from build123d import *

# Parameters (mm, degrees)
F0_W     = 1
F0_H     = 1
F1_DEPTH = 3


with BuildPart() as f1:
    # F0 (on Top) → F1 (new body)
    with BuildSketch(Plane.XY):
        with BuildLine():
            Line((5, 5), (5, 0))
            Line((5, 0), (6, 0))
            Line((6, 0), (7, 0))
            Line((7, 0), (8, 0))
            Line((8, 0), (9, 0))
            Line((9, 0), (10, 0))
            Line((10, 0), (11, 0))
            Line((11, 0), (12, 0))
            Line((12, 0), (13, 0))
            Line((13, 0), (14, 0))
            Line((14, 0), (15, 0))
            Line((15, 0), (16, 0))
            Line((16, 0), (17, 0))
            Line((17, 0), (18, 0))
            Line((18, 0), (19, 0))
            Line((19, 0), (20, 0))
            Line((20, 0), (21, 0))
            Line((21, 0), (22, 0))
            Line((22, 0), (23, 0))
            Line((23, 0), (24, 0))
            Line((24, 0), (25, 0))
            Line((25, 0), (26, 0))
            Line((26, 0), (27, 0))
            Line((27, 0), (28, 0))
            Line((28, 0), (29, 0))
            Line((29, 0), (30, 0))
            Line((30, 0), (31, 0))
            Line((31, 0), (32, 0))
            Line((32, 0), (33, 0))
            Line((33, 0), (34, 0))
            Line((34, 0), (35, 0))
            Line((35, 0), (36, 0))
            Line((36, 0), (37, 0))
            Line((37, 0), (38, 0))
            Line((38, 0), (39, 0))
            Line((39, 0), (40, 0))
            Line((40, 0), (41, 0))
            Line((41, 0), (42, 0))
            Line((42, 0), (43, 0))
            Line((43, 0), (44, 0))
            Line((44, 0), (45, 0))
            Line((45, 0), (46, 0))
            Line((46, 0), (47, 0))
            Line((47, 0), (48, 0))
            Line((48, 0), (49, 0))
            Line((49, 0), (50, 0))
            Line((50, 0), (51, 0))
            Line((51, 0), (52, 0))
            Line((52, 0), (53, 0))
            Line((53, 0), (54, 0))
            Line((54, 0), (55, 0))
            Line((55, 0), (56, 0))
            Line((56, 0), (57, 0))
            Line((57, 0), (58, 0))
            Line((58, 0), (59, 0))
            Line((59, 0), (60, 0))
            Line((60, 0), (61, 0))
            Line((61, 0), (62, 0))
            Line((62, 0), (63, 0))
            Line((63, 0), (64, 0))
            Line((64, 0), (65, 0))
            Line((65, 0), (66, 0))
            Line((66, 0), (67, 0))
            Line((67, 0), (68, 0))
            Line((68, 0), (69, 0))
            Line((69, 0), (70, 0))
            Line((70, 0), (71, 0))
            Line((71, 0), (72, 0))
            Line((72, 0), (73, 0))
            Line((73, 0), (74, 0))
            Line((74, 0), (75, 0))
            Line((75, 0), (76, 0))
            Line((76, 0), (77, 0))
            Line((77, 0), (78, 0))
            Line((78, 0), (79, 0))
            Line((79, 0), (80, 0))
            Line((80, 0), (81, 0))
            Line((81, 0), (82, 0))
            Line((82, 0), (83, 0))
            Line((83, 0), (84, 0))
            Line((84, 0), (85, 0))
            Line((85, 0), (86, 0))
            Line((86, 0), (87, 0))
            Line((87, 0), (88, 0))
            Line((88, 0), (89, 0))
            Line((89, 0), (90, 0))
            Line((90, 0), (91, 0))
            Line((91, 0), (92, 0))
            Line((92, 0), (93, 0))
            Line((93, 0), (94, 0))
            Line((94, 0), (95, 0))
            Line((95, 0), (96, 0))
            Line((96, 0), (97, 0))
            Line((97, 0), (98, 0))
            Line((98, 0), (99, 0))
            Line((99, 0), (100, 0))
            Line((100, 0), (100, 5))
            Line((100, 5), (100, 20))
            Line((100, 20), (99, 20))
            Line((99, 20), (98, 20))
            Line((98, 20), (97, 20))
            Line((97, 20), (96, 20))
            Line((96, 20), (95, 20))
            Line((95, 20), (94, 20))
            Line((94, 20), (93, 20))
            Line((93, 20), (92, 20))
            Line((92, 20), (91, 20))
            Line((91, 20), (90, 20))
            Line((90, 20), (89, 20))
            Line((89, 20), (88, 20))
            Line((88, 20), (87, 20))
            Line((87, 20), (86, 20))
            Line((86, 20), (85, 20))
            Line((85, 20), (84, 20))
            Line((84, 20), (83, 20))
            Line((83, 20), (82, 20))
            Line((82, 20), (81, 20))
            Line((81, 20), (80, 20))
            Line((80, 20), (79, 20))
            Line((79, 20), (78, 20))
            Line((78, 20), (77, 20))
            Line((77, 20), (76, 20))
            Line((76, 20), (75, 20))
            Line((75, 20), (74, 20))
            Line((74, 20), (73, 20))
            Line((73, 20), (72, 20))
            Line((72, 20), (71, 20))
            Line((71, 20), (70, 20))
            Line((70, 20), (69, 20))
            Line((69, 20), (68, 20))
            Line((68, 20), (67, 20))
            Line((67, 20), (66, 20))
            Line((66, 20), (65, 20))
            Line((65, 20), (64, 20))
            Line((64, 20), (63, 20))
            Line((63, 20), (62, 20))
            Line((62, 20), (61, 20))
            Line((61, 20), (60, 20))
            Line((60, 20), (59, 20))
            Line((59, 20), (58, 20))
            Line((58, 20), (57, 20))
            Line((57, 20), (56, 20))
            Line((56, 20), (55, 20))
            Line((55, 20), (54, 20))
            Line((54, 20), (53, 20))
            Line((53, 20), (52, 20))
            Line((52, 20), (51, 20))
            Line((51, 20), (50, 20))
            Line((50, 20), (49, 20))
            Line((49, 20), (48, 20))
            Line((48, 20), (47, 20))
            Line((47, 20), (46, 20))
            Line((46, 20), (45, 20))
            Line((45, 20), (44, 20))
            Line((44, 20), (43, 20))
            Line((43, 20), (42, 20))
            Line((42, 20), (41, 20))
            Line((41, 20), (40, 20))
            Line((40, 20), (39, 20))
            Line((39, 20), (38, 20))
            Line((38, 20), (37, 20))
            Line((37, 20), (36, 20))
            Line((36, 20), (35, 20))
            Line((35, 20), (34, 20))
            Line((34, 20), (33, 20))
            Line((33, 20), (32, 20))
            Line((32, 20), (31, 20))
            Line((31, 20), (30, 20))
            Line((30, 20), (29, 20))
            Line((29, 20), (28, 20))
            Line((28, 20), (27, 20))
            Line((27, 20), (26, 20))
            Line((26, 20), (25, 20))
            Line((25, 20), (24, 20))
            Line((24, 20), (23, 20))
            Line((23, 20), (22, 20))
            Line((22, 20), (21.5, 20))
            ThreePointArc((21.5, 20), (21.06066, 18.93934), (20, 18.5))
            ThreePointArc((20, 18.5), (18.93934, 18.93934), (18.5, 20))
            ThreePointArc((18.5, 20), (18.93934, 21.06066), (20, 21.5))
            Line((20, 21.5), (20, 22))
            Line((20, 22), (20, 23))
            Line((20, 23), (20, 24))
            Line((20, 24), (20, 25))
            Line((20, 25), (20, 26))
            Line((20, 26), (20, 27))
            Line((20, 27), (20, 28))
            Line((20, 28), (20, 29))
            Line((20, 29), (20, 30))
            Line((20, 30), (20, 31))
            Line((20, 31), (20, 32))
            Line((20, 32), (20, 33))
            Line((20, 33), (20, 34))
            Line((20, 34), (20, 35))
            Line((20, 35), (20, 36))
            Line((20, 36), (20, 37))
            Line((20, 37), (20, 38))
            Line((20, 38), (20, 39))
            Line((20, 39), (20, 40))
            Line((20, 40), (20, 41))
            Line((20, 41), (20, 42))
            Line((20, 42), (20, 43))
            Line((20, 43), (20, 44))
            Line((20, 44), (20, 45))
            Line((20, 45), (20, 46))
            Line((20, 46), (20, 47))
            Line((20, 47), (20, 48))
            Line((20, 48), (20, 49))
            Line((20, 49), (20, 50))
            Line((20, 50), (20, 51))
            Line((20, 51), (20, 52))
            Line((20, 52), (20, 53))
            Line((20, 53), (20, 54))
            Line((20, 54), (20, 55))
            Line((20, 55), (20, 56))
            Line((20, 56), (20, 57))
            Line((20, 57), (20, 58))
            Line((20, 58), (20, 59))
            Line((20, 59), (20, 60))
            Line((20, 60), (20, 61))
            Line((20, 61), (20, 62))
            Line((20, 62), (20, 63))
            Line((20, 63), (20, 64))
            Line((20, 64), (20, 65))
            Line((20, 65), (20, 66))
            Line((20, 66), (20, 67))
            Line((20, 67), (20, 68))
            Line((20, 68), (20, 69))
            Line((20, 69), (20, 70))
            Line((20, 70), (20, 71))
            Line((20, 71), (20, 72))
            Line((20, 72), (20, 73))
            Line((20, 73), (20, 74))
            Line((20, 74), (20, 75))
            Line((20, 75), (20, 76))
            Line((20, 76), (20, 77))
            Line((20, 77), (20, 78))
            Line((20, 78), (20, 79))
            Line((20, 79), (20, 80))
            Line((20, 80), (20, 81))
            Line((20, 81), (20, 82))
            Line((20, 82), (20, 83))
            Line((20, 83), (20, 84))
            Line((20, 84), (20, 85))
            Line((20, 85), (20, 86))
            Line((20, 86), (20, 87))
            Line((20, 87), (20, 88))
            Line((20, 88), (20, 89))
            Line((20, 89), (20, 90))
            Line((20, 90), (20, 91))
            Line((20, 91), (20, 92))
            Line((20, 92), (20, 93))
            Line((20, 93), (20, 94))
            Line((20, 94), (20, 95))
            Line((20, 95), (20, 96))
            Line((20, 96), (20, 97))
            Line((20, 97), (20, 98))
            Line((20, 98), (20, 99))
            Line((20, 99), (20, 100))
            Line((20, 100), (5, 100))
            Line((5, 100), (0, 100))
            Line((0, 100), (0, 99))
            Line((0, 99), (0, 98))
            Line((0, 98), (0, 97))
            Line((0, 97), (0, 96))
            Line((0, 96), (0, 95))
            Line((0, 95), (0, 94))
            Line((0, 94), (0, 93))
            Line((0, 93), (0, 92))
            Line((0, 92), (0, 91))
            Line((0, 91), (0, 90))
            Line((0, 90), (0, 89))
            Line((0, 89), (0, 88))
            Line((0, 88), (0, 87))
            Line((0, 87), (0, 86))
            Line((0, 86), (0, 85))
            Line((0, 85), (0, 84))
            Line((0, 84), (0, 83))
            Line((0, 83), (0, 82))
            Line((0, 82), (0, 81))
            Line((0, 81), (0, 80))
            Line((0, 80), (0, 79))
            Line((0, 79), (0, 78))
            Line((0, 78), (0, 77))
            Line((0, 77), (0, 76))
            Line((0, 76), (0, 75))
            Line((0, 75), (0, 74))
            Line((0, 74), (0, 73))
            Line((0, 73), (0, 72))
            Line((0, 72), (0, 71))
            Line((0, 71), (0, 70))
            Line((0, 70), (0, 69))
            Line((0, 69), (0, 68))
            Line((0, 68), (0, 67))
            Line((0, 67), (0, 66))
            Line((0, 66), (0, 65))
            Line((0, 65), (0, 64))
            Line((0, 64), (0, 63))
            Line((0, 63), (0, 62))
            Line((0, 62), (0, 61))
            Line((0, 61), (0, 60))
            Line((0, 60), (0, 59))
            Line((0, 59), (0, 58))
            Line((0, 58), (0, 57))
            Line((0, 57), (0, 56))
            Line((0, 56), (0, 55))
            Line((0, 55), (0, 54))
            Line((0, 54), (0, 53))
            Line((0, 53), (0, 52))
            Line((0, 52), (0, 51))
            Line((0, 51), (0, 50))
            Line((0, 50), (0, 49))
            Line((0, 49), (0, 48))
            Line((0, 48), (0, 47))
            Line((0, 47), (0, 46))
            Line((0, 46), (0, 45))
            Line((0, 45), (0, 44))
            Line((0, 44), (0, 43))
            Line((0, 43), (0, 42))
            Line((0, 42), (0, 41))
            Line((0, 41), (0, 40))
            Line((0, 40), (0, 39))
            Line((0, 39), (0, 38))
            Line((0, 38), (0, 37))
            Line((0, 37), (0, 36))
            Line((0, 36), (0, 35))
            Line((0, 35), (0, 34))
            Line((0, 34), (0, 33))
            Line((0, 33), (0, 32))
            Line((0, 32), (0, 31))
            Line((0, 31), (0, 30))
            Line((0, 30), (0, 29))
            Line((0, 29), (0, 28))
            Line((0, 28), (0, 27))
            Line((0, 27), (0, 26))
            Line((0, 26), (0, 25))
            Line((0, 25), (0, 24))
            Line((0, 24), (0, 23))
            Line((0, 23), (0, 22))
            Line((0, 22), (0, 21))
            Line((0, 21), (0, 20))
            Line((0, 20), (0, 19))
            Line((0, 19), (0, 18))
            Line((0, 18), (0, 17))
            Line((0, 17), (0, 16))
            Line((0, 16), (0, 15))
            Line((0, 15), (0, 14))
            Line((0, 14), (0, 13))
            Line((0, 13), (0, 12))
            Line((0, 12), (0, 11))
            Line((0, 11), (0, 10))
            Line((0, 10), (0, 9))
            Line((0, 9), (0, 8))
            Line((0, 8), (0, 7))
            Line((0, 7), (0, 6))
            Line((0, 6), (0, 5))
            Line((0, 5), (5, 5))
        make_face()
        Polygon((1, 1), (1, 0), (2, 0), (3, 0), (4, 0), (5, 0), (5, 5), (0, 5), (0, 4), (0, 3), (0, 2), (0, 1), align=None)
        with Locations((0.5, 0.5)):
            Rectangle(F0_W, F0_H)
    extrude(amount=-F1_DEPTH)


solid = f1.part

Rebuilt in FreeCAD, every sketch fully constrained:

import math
import FreeCAD as App
import Part
import Sketcher
Q = App.Units.Quantity

doc = App.newDocument("Part")
params = doc.addObject("Spreadsheet::Sheet", "Params")
for row, (alias, value) in enumerate([
    ("sketch1_radius", "1.500001 mm"),
    ("sketch1_width", "20 mm"),
    ("sketch1_width2", "100 mm"),
    ("pad1_length", "3 mm"),
], start=1):
    params.set(f"A{row}", alias)
    params.set(f"B{row}", "=" + value)
    params.setAlias(f"B{row}", alias)

body = doc.addObject("PartDesign::Body", "Body")

# Sketch on XY plane
sketch1 = body.newObject("Sketcher::SketchObject", "Sketch")
sketch1.AttachmentSupport = (doc.getObject("XY_Plane"), [""])
sketch1.MapMode = "FlatFace"
sketch1.addGeometry(Part.LineSegment(App.Vector(100, 0, 0), App.Vector(100, 20, 0)), False)
sketch1.addGeometry(Part.LineSegment(App.Vector(100, 20, 0), App.Vector(21.5, 20, 0)), False)
sketch1.addGeometry(Part.ArcOfCircle(Part.Circle(App.Vector(19.999999, 20.000001, 0), App.Vector(0, 0, 1), 1.500001), math.radians(-89.999978), math.radians(-0.000022)), False)
sketch1.addGeometry(Part.ArcOfCircle(Part.Circle(App.Vector(20.000001, 20.000001, 0), App.Vector(0, 0, 1), 1.500001), math.radians(-179.999978), math.radians(-90.000022)), False)
sketch1.addGeometry(Part.ArcOfCircle(Part.Circle(App.Vector(20.000001, 19.999999, 0), App.Vector(0, 0, 1), 1.500001), math.radians(90.000022), math.radians(179.999978)), False)
sketch1.addGeometry(Part.LineSegment(App.Vector(20, 21.5, 0), App.Vector(20, 100, 0)), False)
sketch1.addGeometry(Part.LineSegment(App.Vector(20, 100, 0), App.Vector(0, 100, 0)), False)
sketch1.addGeometry(Part.LineSegment(App.Vector(0, 100, 0), App.Vector(0, 0, 0)), False)
sketch1.addGeometry(Part.LineSegment(App.Vector(0, 0, 0), App.Vector(100, 0, 0)), False)
sketch1.addConstraint(Sketcher.Constraint("Coincident", 0, 2, 1, 1))
sketch1.addConstraint(Sketcher.Constraint("Coincident", 1, 2, 2, 2))
sketch1.addConstraint(Sketcher.Constraint("Tangent", 2, 1, 3, 2))
sketch1.addConstraint(Sketcher.Constraint("Tangent", 3, 1, 4, 2))
sketch1.addConstraint(Sketcher.Constraint("Coincident", 4, 1, 5, 1))
sketch1.addConstraint(Sketcher.Constraint("Coincident", 5, 2, 6, 1))
sketch1.addConstraint(Sketcher.Constraint("Coincident", 6, 2, 7, 1))
sketch1.addConstraint(Sketcher.Constraint("Coincident", 7, 2, 8, 1))
sketch1.addConstraint(Sketcher.Constraint("Coincident", 8, 2, 0, 1))
sketch1.addConstraint(Sketcher.Constraint("Vertical", 0))
sketch1.addConstraint(Sketcher.Constraint("Horizontal", 1))
sketch1.addConstraint(Sketcher.Constraint("Vertical", 5))
sketch1.addConstraint(Sketcher.Constraint("Horizontal", 6))
sketch1.addConstraint(Sketcher.Constraint("Vertical", 7))
sketch1.addConstraint(Sketcher.Constraint("Horizontal", 8))
sketch1.addConstraint(Sketcher.Constraint("Coincident", 7, 2, -1, 1))
sketch1.addConstraint(Sketcher.Constraint("Coincident", 4, 3, 2, 3))
sketch1.addConstraint(Sketcher.Constraint("Horizontal", 4, 3, 0, 2))
sketch1.addConstraint(Sketcher.Constraint("Horizontal", 1, 2, 3, 1))
sketch1.addConstraint(Sketcher.Constraint("Vertical", 4, 3, 2, 1))
sketch1.addConstraint(Sketcher.Constraint("Vertical", 2, 1, 4, 1))
sketch1.addConstraint(Sketcher.Constraint("Equal", 6, 0))
sketch1.addConstraint(Sketcher.Constraint("Equal", 1, 5))
sketch1.addConstraint(Sketcher.Constraint("Radius", 2, Q("1.500001 mm")))
sketch1.addConstraint(Sketcher.Constraint("DistanceX", 6, 2, 6, 1, Q("20 mm")))
sketch1.addConstraint(Sketcher.Constraint("DistanceX", 8, 1, 8, 2, Q("100 mm")))
sketch1.setExpression("Constraints[23]", "Params.sketch1_radius")
sketch1.setExpression("Constraints[24]", "Params.sketch1_width")
sketch1.setExpression("Constraints[25]", "Params.sketch1_width2")
pad1 = body.newObject("PartDesign::Pad", "Pad")
pad1.Profile = sketch1
pad1.setExpression("Length", "Params.pad1_length")
pad1.Reversed = True

doc.recompute()
